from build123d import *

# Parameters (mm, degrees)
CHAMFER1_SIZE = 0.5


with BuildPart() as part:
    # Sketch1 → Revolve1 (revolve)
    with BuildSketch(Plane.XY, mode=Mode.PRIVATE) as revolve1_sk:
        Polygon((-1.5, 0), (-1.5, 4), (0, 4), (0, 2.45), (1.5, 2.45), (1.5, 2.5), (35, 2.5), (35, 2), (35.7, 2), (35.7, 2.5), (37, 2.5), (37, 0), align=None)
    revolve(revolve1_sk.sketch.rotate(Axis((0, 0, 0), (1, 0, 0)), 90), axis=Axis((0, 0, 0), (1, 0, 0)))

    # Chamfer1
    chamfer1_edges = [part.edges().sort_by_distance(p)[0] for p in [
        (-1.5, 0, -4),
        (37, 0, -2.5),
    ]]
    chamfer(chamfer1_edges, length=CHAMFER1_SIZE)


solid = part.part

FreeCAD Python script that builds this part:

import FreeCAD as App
import Part
import Sketcher
Q = App.Units.Quantity


def edges_at(feature, points):
    """Names of the edges that pass closest to the given points."""
    edges = feature.Shape.Edges
    near = lambda p: min(range(len(edges)), key=lambda i: edges[i].distToShape(Part.Vertex(*p))[0])
    return sorted({f"Edge{near(p) + 1}" for p in points})


def add_polygon(sketch, points):
    """Adds a closed chain of lines whose ends are joined by coincident constraints."""
    first, n = sketch.GeometryCount, len(points)
    for a, b in zip(points, points[1:] + points[:1]):
        sketch.addGeometry(Part.LineSegment(App.Vector(*a, 0), App.Vector(*b, 0)), False)
    for i in range(n):
        sketch.addConstraint(Sketcher.Constraint("Coincident", first + i, 2, first + (i + 1) % n, 1))

doc = App.newDocument("Part")
body = doc.addObject("PartDesign::Body", "Body")

sketch1 = doc.addObject("Sketcher::SketchObject", "Sketch")
body.addObject(sketch1)
sketch1.AttachmentSupport = (doc.XY_Plane, [""])
sketch1.MapMode = "FlatFace"
add_polygon(sketch1, [(-1.5, 4), (-1.5, 0), (37, 0), (37, 2.5), (35.7, 2.5), (35.7, 2), (35, 2), (35, 2.5), (1.5, 2.5), (1.5, 2.45), (0, 2.45), (0, 4)])
sketch1.addConstraint(Sketcher.Constraint("Vertical", 0))
sketch1.addConstraint(Sketcher.Constraint("Horizontal", 1))
sketch1.addConstraint(Sketcher.Constraint("Vertical", 2))
sketch1.addConstraint(Sketcher.Constraint("Horizontal", 3))
sketch1.addConstraint(Sketcher.Constraint("Vertical", 4))
sketch1.addConstraint(Sketcher.Constraint("Horizontal", 5))
sketch1.addConstraint(Sketcher.Constraint("Vertical", 6))
sketch1.addConstraint(Sketcher.Constraint("Horizontal", 7))
sketch1.addConstraint(Sketcher.Constraint("Vertical", 8))
sketch1.addConstraint(Sketcher.Constraint("Horizontal", 9))
sketch1.addConstraint(Sketcher.Constraint("Vertical", 10))
sketch1.addConstraint(Sketcher.Constraint("Horizontal", 11))
sketch1.addConstraint(Sketcher.Constraint("PointOnObject", 0, 2, -1))
sketch1.addConstraint(Sketcher.Constraint("PointOnObject", 9, 2, -2))
sketch1.addConstraint(Sketcher.Constraint("Horizontal", 3, 2, 6, 2))
sketch1.addConstraint(Sketcher.Constraint("Equal", 9, 11))
sketch1.addConstraint(Sketcher.Constraint("DistanceY", 0, 2, 0, 1, Q("4 mm")))
sketch1.addConstraint(Sketcher.Constraint("DistanceX", 1, 1, 1, 2, Q("38.5 mm")))
sketch1.addConstraint(Sketcher.Constraint("DistanceX", 3, 2, 3, 1, Q("1.3 mm")))
sketch1.addConstraint(Sketcher.Constraint("DistanceX", 5, 2, 5, 1, Q("0.7 mm")))
sketch1.addConstraint(Sketcher.Constraint("DistanceX", 7, 2, 7, 1, Q("33.5 mm")))
sketch1.addConstraint(Sketcher.Constraint("DistanceY", 2, 1, 2, 2, Q("2.5 mm")))
sketch1.addConstraint(Sketcher.Constraint("DistanceY", 4, 2, 4, 1, Q("0.5 mm")))
sketch1.addConstraint(Sketcher.Constraint("DistanceY", 8, 2, 8, 1, Q("0.05 mm")))
revolution = doc.addObject("PartDesign::Revolution", "Revolution")
body.addObject(revolution)
revolution.Profile = sketch1
revolution.ReferenceAxis = (sketch1, ["H_Axis"])
revolution.Angle = 360
doc.recompute()

chamfer = doc.addObject("PartDesign::Chamfer", "Chamfer")
body.addObject(chamfer)
chamfer.Base = (revolution, edges_at(revolution, [(-1.5, 0, -4), (37, 0, -2.5)]))
chamfer.Size = 0.5

doc.recompute()
